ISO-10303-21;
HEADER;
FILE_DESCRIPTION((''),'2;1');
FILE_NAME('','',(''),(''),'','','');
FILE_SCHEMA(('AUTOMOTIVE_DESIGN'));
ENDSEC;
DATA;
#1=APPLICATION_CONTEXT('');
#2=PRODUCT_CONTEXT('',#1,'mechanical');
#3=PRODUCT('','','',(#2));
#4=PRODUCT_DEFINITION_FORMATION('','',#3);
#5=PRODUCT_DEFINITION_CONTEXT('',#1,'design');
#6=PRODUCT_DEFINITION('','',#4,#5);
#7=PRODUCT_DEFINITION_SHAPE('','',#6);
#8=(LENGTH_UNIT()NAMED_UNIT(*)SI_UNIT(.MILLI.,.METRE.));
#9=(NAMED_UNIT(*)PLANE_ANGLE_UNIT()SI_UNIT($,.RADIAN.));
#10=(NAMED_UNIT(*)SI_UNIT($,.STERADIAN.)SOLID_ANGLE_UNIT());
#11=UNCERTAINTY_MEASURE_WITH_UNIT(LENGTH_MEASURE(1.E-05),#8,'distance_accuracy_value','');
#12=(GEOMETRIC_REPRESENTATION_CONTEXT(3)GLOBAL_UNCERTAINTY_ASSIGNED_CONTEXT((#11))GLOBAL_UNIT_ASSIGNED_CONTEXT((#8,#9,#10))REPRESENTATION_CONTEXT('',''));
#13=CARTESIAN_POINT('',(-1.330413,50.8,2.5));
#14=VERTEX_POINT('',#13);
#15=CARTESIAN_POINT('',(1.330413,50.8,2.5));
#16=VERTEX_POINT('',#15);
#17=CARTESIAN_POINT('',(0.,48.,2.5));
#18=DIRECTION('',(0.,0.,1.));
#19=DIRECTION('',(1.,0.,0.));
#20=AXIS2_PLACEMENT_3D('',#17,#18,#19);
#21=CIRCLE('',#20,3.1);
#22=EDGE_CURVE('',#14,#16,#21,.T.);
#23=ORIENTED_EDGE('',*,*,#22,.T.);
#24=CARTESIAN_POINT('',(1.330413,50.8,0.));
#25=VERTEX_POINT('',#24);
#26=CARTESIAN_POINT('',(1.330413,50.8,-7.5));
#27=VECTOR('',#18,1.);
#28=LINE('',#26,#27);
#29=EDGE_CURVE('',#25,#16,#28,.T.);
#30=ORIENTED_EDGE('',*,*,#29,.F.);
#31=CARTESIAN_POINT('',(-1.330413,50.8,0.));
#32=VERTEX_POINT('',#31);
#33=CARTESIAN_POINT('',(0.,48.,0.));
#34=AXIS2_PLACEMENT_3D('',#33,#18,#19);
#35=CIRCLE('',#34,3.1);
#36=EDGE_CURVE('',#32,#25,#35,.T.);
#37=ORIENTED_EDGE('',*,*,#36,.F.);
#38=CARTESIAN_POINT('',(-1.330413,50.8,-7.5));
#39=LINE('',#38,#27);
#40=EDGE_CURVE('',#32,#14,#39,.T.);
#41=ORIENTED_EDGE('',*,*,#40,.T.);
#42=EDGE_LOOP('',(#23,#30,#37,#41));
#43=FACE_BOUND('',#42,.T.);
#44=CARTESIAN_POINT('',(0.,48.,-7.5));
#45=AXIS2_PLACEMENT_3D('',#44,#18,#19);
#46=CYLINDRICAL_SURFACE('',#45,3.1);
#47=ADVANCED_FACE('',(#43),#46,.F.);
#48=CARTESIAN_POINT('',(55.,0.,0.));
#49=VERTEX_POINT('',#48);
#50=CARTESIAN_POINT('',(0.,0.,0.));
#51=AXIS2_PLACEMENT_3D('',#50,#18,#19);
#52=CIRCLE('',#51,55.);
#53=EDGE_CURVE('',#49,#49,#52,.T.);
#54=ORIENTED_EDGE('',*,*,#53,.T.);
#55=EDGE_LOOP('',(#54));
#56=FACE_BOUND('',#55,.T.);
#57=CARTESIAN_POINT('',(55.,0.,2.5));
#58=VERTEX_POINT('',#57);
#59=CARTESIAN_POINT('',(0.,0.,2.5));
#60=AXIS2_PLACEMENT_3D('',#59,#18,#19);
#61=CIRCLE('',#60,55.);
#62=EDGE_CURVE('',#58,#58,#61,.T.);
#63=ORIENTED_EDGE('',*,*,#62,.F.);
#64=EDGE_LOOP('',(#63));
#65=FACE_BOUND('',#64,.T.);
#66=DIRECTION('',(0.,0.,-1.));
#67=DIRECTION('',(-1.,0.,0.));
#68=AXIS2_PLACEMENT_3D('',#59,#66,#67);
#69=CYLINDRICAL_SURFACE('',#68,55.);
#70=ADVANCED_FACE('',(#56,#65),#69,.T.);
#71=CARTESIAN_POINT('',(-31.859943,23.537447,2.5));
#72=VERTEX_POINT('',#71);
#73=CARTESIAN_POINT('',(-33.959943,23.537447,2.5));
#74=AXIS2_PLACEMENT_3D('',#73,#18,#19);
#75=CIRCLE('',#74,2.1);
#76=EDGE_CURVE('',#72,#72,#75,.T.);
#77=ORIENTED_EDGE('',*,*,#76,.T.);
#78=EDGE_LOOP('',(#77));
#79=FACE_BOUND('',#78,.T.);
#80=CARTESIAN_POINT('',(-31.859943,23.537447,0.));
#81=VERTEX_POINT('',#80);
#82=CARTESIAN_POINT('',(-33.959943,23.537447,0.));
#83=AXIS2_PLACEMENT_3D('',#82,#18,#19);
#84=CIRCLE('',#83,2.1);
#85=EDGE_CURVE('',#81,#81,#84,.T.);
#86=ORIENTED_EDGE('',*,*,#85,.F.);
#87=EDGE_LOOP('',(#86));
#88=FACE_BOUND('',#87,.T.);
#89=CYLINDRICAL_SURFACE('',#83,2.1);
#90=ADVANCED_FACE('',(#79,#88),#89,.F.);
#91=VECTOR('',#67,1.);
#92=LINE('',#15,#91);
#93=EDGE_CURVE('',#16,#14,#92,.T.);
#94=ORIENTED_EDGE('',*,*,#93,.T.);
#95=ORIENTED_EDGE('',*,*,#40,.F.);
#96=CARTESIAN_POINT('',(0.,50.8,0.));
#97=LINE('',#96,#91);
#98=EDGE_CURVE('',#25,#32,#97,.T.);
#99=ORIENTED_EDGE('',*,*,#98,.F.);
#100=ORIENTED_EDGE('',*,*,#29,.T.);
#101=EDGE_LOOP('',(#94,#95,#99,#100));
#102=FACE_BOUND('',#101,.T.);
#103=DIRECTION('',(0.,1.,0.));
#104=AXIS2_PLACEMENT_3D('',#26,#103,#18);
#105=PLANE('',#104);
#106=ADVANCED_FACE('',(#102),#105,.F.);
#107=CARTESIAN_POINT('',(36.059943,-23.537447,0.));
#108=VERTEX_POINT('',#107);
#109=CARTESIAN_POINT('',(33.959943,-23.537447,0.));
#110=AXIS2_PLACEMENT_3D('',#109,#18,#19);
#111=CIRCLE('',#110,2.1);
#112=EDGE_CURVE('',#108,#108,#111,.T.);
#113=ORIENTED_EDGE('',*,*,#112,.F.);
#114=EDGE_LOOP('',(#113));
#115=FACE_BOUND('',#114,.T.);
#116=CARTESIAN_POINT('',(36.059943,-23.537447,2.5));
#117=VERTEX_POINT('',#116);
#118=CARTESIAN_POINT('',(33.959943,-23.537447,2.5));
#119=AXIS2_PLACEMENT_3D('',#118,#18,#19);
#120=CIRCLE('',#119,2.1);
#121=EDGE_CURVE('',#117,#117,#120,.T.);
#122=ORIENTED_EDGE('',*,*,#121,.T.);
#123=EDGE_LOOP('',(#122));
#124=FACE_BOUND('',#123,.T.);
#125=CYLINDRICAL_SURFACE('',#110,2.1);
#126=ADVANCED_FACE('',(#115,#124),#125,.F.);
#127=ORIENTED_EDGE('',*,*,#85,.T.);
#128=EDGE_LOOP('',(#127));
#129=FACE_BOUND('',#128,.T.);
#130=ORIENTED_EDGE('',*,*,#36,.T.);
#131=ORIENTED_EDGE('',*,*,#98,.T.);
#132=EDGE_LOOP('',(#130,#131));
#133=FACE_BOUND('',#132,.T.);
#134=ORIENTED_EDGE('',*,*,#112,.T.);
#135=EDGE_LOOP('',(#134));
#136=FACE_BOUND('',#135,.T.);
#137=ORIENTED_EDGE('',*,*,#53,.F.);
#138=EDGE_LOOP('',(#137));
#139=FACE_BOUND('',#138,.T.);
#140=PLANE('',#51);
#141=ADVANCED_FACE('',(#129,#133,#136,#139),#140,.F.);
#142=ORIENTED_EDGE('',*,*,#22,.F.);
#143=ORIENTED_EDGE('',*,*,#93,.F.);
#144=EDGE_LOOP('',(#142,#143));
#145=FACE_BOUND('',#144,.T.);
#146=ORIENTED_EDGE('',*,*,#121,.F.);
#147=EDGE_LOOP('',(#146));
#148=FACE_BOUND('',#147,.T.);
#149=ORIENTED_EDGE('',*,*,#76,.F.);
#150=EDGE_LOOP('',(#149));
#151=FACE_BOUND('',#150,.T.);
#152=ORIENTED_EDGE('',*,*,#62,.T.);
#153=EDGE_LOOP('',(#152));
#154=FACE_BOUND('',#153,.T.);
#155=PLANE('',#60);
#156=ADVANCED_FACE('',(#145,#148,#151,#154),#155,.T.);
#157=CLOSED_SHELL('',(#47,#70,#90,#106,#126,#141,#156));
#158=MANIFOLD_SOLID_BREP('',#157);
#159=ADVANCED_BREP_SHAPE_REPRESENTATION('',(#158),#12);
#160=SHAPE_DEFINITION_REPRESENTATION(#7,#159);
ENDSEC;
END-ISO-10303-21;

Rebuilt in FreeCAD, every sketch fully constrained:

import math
import FreeCAD as App
import Part
import Sketcher
Q = App.Units.Quantity

doc = App.newDocument("Part")
body = doc.addObject("PartDesign::Body", "Body")

# Sketch on XY plane
sketch1 = doc.addObject("Sketcher::SketchObject", "Sketch")
body.addObject(sketch1)
sketch1.AttachmentSupport = (doc.XY_Plane, [""])
sketch1.MapMode = "FlatFace"
sketch1.addGeometry(Part.Circle(App.Vector(0, 0, 0), App.Vector(0, 0, 1), 55), False)
sketch1.addConstraint(Sketcher.Constraint("Coincident", 0, 3, -1, 1))
sketch1.addConstraint(Sketcher.Constraint("Diameter", 0, Q("110 mm")))
pad1 = doc.addObject("PartDesign::Pad", "Pad")
body.addObject(pad1)
pad1.Profile = sketch1
pad1.Length = 2.5

# Sketch on XY plane
sketch2 = doc.addObject("Sketcher::SketchObject", "Sketch001")
body.addObject(sketch2)
sketch2.AttachmentSupport = (doc.XY_Plane, [""])
sketch2.MapMode = "FlatFace"
sketch2.AttachmentOffset = App.Placement(App.Vector(0, 0, 2.5), App.Rotation())
sketch2.addGeometry(Part.Circle(App.Vector(34, -23.5, 0), App.Vector(0, 0, 1), 2.1), False)
sketch2.addGeometry(Part.Circle(App.Vector(-34, 23.5, 0), App.Vector(0, 0, 1), 2.1), False)
sketch2.addConstraint(Sketcher.Constraint("Equal", 0, 1))
sketch2.addConstraint(Sketcher.Constraint("Symmetric", 0, 3, 1, 3, -1, 1))
sketch2.addConstraint(Sketcher.Constraint("Diameter", 0, Q("4.2 mm")))
sketch2.addConstraint(Sketcher.Constraint("DistanceX", -1, 1, 0, 3, Q("33.959943 mm")))
sketch2.addConstraint(Sketcher.Constraint("DistanceY", 0, 3, -1, 1, Q("23.537447 mm")))
pocket1 = doc.addObject("PartDesign::Pocket", "Pocket")
body.addObject(pocket1)
pocket1.Profile = sketch2
pocket1.Type = "ThroughAll"

# Sketch on XY plane
sketch3 = doc.addObject("Sketcher::SketchObject", "Sketch002")
body.addObject(sketch3)
sketch3.AttachmentSupport = (doc.XY_Plane, [""])
sketch3.MapMode = "FlatFace"
sketch3.AttachmentOffset = App.Placement(App.Vector(0, 0, 2.5), App.Rotation())
sketch3.addGeometry(Part.LineSegment(App.Vector(1.3, 50.8, 0), App.Vector(-1.3, 50.8, 0)), False)
sketch3.addGeometry(Part.ArcOfCircle(Part.Circle(App.Vector(0, 48, 0), App.Vector(0, 0, 1), 3.1), math.radians(115), math.radians(425)), False)
sketch3.addConstraint(Sketcher.Constraint("Coincident", 0, 1, 1, 2))
sketch3.addConstraint(Sketcher.Constraint("Coincident", 1, 1, 0, 2))
sketch3.addConstraint(Sketcher.Constraint("Horizontal", 0))
sketch3.addConstraint(Sketcher.Constraint("PointOnObject", 1, 3, -2))
sketch3.addConstraint(Sketcher.Constraint("Radius", 1, Q("3.1 mm")))
sketch3.addConstraint(Sketcher.Constraint("DistanceY", -1, 1, 1, 3, Q("48 mm")))
sketch3.addConstraint(Sketcher.Constraint("DistanceY", -1, 1, 0, 1, Q("50.8 mm")))
pocket2 = doc.addObject("PartDesign::Pocket", "Pocket001")
body.addObject(pocket2)
pocket2.Profile = sketch3
pocket2.Length = 10

doc.recompute()
